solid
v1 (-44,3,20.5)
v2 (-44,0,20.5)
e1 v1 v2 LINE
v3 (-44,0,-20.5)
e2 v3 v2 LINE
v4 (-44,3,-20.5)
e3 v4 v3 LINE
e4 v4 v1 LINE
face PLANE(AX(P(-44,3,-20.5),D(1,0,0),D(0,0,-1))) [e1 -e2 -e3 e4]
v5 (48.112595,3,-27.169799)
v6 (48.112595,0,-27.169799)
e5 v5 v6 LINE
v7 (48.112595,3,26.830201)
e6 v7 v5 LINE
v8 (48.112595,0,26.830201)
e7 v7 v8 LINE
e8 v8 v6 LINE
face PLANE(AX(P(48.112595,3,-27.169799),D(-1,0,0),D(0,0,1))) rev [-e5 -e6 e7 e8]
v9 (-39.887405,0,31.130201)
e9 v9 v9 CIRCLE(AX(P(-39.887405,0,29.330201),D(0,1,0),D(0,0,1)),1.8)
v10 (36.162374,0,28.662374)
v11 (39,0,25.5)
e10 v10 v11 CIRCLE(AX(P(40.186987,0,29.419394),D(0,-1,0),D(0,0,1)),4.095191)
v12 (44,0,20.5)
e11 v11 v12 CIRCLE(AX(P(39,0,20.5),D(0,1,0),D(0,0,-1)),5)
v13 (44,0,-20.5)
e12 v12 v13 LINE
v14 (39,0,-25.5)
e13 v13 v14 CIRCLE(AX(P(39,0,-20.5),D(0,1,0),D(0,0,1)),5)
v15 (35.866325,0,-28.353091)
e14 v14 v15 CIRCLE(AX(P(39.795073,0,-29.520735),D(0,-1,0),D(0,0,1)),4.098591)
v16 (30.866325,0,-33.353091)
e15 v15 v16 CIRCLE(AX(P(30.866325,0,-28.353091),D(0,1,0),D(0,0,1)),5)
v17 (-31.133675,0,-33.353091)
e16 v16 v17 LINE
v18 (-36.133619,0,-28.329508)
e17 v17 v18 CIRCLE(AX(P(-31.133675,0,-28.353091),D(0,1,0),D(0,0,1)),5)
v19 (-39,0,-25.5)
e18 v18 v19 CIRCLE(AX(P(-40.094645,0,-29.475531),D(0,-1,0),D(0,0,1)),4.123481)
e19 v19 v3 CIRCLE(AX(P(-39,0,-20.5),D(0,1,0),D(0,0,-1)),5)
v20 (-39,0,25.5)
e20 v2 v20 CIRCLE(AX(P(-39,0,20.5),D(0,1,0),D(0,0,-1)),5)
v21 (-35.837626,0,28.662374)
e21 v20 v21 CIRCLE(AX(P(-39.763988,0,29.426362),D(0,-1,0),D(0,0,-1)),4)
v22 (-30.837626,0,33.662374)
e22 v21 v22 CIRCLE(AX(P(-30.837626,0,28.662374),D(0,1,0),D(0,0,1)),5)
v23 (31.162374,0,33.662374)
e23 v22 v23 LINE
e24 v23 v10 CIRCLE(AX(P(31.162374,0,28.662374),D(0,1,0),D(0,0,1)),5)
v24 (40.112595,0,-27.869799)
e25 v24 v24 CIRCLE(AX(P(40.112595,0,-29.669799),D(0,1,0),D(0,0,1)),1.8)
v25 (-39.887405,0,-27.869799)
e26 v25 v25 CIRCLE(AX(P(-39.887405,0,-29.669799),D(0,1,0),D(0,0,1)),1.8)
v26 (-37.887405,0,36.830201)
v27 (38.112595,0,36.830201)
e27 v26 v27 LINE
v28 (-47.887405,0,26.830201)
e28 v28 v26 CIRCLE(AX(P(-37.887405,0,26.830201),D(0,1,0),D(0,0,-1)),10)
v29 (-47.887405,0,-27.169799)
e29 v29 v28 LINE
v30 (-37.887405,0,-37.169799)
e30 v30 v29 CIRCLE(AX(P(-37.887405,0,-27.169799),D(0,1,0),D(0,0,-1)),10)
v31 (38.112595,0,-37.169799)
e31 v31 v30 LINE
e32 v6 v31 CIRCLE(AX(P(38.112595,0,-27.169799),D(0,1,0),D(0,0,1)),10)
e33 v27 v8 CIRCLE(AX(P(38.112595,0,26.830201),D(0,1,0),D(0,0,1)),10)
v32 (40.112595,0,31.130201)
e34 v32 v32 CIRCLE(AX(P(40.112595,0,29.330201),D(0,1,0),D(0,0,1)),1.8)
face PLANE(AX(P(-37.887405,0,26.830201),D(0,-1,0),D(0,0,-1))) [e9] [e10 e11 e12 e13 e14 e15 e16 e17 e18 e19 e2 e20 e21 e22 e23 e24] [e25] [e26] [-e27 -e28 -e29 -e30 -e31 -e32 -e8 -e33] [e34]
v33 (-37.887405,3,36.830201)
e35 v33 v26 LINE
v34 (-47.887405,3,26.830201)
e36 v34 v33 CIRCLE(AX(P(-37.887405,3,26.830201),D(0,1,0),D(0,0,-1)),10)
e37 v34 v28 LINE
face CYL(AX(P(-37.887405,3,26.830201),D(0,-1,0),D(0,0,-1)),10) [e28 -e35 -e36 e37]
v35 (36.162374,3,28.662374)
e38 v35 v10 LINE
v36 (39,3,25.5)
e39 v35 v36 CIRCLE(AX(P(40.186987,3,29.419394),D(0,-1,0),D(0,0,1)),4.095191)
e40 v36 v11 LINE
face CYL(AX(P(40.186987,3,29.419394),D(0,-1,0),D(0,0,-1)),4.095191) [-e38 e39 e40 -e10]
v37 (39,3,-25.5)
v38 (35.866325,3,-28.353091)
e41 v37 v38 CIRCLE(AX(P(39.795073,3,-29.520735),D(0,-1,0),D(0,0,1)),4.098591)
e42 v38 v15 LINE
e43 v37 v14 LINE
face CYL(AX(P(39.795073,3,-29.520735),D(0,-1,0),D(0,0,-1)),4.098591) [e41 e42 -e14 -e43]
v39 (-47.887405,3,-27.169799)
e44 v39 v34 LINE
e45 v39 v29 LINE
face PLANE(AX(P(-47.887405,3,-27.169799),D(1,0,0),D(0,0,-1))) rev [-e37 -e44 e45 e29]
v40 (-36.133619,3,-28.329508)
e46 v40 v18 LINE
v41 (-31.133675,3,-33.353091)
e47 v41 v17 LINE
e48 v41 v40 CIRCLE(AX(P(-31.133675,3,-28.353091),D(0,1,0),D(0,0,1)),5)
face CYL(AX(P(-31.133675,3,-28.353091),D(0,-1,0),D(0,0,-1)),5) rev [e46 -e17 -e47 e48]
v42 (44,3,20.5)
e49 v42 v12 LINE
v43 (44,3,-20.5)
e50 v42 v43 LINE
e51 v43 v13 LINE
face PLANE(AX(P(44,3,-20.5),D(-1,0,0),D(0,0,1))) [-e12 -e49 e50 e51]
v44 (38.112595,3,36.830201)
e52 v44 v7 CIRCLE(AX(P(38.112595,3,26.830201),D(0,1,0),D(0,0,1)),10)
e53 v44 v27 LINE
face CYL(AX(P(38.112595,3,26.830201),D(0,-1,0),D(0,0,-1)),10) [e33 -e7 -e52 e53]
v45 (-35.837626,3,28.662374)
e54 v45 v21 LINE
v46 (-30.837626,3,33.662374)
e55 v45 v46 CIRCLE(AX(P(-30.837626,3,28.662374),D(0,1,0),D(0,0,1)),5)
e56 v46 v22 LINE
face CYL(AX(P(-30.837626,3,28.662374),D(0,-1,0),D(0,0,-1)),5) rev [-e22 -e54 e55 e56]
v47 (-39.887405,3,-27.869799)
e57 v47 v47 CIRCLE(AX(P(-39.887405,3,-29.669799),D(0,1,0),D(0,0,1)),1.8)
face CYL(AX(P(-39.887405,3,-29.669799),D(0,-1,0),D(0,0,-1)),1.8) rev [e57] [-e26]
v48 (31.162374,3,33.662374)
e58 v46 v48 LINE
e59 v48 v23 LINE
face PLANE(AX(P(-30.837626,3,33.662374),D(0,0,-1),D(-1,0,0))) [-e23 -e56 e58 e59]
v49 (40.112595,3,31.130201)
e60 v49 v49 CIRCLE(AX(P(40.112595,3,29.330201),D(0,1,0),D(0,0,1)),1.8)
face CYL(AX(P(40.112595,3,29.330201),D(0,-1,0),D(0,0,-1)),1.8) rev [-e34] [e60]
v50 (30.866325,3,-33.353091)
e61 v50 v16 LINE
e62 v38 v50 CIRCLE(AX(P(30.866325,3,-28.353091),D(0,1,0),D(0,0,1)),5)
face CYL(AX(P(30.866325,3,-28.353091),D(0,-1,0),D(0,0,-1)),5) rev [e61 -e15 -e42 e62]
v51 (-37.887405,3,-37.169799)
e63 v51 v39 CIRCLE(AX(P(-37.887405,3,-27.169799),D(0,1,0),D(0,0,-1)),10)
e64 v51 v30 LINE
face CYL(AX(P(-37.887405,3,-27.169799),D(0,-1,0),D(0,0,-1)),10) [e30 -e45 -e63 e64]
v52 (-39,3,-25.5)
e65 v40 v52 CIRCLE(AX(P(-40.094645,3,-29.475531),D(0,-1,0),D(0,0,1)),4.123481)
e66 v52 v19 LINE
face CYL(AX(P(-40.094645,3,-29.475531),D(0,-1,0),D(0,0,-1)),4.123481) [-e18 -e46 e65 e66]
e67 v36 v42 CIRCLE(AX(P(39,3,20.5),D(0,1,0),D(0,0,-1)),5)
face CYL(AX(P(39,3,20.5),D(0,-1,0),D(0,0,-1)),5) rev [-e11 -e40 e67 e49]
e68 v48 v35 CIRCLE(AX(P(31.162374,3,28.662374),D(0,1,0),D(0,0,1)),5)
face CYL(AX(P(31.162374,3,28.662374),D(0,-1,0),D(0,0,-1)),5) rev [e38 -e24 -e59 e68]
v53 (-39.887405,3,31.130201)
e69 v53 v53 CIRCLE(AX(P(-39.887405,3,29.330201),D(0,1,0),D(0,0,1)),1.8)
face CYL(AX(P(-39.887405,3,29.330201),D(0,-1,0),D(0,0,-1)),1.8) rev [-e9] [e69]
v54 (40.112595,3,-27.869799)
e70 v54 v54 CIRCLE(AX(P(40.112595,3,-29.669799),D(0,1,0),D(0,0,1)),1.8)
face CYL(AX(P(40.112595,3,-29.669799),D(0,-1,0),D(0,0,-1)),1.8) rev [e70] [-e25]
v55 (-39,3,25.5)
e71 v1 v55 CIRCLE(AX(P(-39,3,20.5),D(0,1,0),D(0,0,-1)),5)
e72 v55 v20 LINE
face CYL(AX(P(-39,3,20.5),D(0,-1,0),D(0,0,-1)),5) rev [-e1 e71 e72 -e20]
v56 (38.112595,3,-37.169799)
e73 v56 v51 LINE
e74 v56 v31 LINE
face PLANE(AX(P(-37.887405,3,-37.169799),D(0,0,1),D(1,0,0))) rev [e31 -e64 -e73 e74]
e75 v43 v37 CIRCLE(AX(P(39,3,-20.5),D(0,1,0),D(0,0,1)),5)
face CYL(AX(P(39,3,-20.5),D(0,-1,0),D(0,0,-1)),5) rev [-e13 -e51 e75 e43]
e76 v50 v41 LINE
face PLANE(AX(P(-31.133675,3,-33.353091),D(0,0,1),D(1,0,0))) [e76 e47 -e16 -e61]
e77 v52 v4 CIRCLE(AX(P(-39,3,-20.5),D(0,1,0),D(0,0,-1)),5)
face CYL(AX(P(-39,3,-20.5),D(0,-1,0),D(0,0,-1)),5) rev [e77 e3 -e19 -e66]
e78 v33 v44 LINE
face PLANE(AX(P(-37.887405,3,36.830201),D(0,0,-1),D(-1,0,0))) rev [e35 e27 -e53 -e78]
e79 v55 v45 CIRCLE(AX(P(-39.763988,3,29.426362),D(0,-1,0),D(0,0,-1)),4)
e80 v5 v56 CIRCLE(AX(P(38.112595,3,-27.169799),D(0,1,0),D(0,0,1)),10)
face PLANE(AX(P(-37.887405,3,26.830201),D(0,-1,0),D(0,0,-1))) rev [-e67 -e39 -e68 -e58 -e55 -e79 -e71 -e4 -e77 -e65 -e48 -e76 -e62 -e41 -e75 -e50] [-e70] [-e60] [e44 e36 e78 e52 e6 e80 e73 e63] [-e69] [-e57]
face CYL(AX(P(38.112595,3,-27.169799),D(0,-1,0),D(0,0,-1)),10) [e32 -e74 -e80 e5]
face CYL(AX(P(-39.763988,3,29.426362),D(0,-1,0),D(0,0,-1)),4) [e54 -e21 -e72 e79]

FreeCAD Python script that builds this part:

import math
import FreeCAD as App
import Part
import Sketcher

V = App.Vector
Q = App.Units.Quantity

doc = App.newDocument("Part")
body = doc.addObject("PartDesign::Body", "Body")

sketch1 = body.newObject("Sketcher::SketchObject", "Sketch")
sketch1.AttachmentSupport = (doc.getObject("XZ_Plane"), [""])
sketch1.MapMode = "FlatFace"
sketch1.addGeometry(Part.LineSegment(V(38.1, -37.2, 0), V(-37.9, -37.2, 0)), False)
sketch1.addGeometry(Part.ArcOfCircle(Part.Circle(V(-37.9, -27.2, 0), V(0, 0, 1), 10), math.radians(180), math.radians(270)), False)
sketch1.addGeometry(Part.LineSegment(V(-47.9, -27.2, 0), V(-47.9, 26.8, 0)), False)
sketch1.addGeometry(Part.ArcOfCircle(Part.Circle(V(-37.9, 26.8, 0), V(0, 0, 1), 10), math.radians(90), math.radians(180)), False)
sketch1.addGeometry(Part.LineSegment(V(-37.9, 36.8, 0), V(38.1, 36.8, 0)), False)
sketch1.addGeometry(Part.ArcOfCircle(Part.Circle(V(38.1, 26.8, 0), V(0, 0, 1), 10), math.radians(0), math.radians(90)), False)
sketch1.addGeometry(Part.LineSegment(V(48.1, 26.8, 0), V(48.1, -27.2, 0)), False)
sketch1.addGeometry(Part.ArcOfCircle(Part.Circle(V(38.1, -27.2, 0), V(0, 0, 1), 10), math.radians(-90), math.radians(0)), False)
sketch1.addGeometry(Part.Circle(V(40.1, 29.3, 0), V(0, 0, 1), 1.8), False)
sketch1.addGeometry(Part.Circle(V(-39.9, 29.3, 0), V(0, 0, 1), 1.8), False)
sketch1.addGeometry(Part.Circle(V(40.1, -29.7, 0), V(0, 0, 1), 1.8), False)
sketch1.addGeometry(Part.ArcOfCircle(Part.Circle(V(-39, -20.5, 0), V(0, 0, 1), 5), math.radians(180), math.radians(270)), False)
sketch1.addGeometry(Part.ArcOfCircle(Part.Circle(V(-40.1, -29.5, 0), V(0, 0, 1), 4.1), math.radians(16), math.radians(75)), False)
sketch1.addGeometry(Part.ArcOfCircle(Part.Circle(V(-31.1, -28.4, 0), V(0, 0, 1), 5), math.radians(180), math.radians(270)), False)
sketch1.addGeometry(Part.LineSegment(V(-31.1, -33.4, 0), V(30.9, -33.4, 0)), False)
sketch1.addGeometry(Part.ArcOfCircle(Part.Circle(V(30.9, -28.4, 0), V(0, 0, 1), 5), math.radians(-90), math.radians(0)), False)
sketch1.addGeometry(Part.ArcOfCircle(Part.Circle(V(39.8, -29.5, 0), V(0, 0, 1), 4.1), math.radians(101), math.radians(163)), False)
sketch1.addGeometry(Part.ArcOfCircle(Part.Circle(V(39, -20.5, 0), V(0, 0, 1), 5), math.radians(-90), math.radians(0)), False)
sketch1.addGeometry(Part.LineSegment(V(44, -20.5, 0), V(44, 20.5, 0)), False)
sketch1.addGeometry(Part.ArcOfCircle(Part.Circle(V(39, 20.5, 0), V(0, 0, 1), 5), math.radians(0), math.radians(90)), False)
sketch1.addGeometry(Part.ArcOfCircle(Part.Circle(V(40.2, 29.4, 0), V(0, 0, 1), 4.1), math.radians(-169), math.radians(-107)), False)
sketch1.addGeometry(Part.ArcOfCircle(Part.Circle(V(31.2, 28.7, 0), V(0, 0, 1), 5), math.radians(0), math.radians(90)), False)
sketch1.addGeometry(Part.LineSegment(V(31.2, 33.7, 0), V(-30.8, 33.7, 0)), False)
sketch1.addGeometry(Part.ArcOfCircle(Part.Circle(V(-30.8, 28.7, 0), V(0, 0, 1), 5), math.radians(90), math.radians(180)), False)
sketch1.addGeometry(Part.ArcOfCircle(Part.Circle(V(-39.8, 29.4, 0), V(0, 0, 1), 4), math.radians(-79), math.radians(-11)), False)
sketch1.addGeometry(Part.ArcOfCircle(Part.Circle(V(-39, 20.5, 0), V(0, 0, 1), 5), math.radians(90), math.radians(180)), False)
sketch1.addGeometry(Part.LineSegment(V(-44, 20.5, 0), V(-44, -20.5, 0)), False)
sketch1.addGeometry(Part.Circle(V(-39.9, -29.7, 0), V(0, 0, 1), 1.8), False)
sketch1.addConstraint(Sketcher.Constraint("Tangent", 0, 2, 1, 2))
sketch1.addConstraint(Sketcher.Constraint("Tangent", 1, 1, 2, 1))
sketch1.addConstraint(Sketcher.Constraint("Tangent", 2, 2, 3, 2))
sketch1.addConstraint(Sketcher.Constraint("Tangent", 3, 1, 4, 1))
sketch1.addConstraint(Sketcher.Constraint("Tangent", 4, 2, 5, 2))
sketch1.addConstraint(Sketcher.Constraint("Tangent", 5, 1, 6, 1))
sketch1.addConstraint(Sketcher.Constraint("Tangent", 6, 2, 7, 2))
sketch1.addConstraint(Sketcher.Constraint("Tangent", 7, 1, 0, 1))
sketch1.addConstraint(Sketcher.Constraint("Coincident", 11, 2, 12, 2))
sketch1.addConstraint(Sketcher.Constraint("Coincident", 12, 1, 13, 1))
sketch1.addConstraint(Sketcher.Constraint("Tangent", 13, 2, 14, 1))
sketch1.addConstraint(Sketcher.Constraint("Tangent", 14, 2, 15, 1))
sketch1.addConstraint(Sketcher.Constraint("Coincident", 15, 2, 16, 2))
sketch1.addConstraint(Sketcher.Constraint("Coincident", 16, 1, 17, 1))
sketch1.addConstraint(Sketcher.Constraint("Tangent", 17, 2, 18, 1))
sketch1.addConstraint(Sketcher.Constraint("Tangent", 18, 2, 19, 1))
sketch1.addConstraint(Sketcher.Constraint("Coincident", 19, 2, 20, 2))
sketch1.addConstraint(Sketcher.Constraint("Coincident", 20, 1, 21, 1))
sketch1.addConstraint(Sketcher.Constraint("Tangent", 21, 2, 22, 1))
sketch1.addConstraint(Sketcher.Constraint("Tangent", 22, 2, 23, 1))
sketch1.addConstraint(Sketcher.Constraint("Coincident", 23, 2, 24, 2))
sketch1.addConstraint(Sketcher.Constraint("Coincident", 24, 1, 25, 1))
sketch1.addConstraint(Sketcher.Constraint("Tangent", 25, 2, 26, 1))
sketch1.addConstraint(Sketcher.Constraint("Tangent", 26, 2, 11, 1))
sketch1.addConstraint(Sketcher.Constraint("Horizontal", 0))
sketch1.addConstraint(Sketcher.Constraint("Vertical", 2))
sketch1.addConstraint(Sketcher.Constraint("Horizontal", 4))
sketch1.addConstraint(Sketcher.Constraint("Vertical", 6))
sketch1.addConstraint(Sketcher.Constraint("Horizontal", 14))
sketch1.addConstraint(Sketcher.Constraint("Vertical", 18))
sketch1.addConstraint(Sketcher.Constraint("Horizontal", 22))
sketch1.addConstraint(Sketcher.Constraint("Vertical", 26))
sketch1.addConstraint(Sketcher.Constraint("Equal", 1, 3))
sketch1.addConstraint(Sketcher.Constraint("Equal", 3, 5))
sketch1.addConstraint(Sketcher.Constraint("Equal", 5, 7))
sketch1.addConstraint(Sketcher.Constraint("Equal", 8, 9))
sketch1.addConstraint(Sketcher.Constraint("Equal", 9, 10))
sketch1.addConstraint(Sketcher.Constraint("Equal", 11, 13))
sketch1.addConstraint(Sketcher.Constraint("Equal", 13, 15))
sketch1.addConstraint(Sketcher.Constraint("Equal", 15, 17))
sketch1.addConstraint(Sketcher.Constraint("Equal", 17, 19))
sketch1.addConstraint(Sketcher.Constraint("Equal", 19, 21))
sketch1.addConstraint(Sketcher.Constraint("Equal", 21, 23))
sketch1.addConstraint(Sketcher.Constraint("Equal", 23, 25))
sketch1.addConstraint(Sketcher.Constraint("Equal", 10, 27))
sketch1.addConstraint(Sketcher.Constraint("Symmetric", 11, 3, 19, 3, -1, 1))
sketch1.addConstraint(Sketcher.Constraint("Symmetric", 16, 1, 24, 1, -1, 1))
sketch1.addConstraint(Sketcher.Constraint("Symmetric", 11, 2, 16, 1, -2))
sketch1.addConstraint(Sketcher.Constraint("Horizontal", 8, 3, 9, 3))
sketch1.addConstraint(Sketcher.Constraint("Horizontal", 10, 3, 27, 3))
sketch1.addConstraint(Sketcher.Constraint("Horizontal", 13, 3, 15, 2))
sketch1.addConstraint(Sketcher.Constraint("Horizontal", 23, 3, 20, 1))
sketch1.addConstraint(Sketcher.Constraint("Horizontal", 20, 1, 23, 2))
sketch1.addConstraint(Sketcher.Constraint("Vertical", 8, 3, 10, 3))
sketch1.addConstraint(Sketcher.Constraint("Vertical", 9, 3, 27, 3))
sketch1.addConstraint(Sketcher.Constraint("Vertical", 25, 3, 11, 2))
sketch1.addConstraint(Sketcher.Constraint("Vertical", 16, 1, 19, 2))
sketch1.addConstraint(Sketcher.Constraint("Equal", 14, 22))
sketch1.addConstraint(Sketcher.Constraint("Radius", 1, Q("10 mm")))
sketch1.addConstraint(Sketcher.Constraint("Radius", 11, Q("5 mm")))
sketch1.addConstraint(Sketcher.Constraint("Radius", 24, Q("4 mm")))
sketch1.addConstraint(Sketcher.Constraint("Diameter", 8, Q("3.6 mm")))
sketch1.addConstraint(Sketcher.Constraint("DistanceX", 0, 2, 0, 1, Q("76 mm")))
sketch1.addConstraint(Sketcher.Constraint("DistanceX", 14, 1, 14, 2, Q("62 mm")))
sketch1.addConstraint(Sketcher.Constraint("DistanceY", 2, 1, 2, 2, Q("54 mm")))
sketch1.addConstraint(Sketcher.Constraint("DistanceY", 18, 1, 18, 2, Q("41 mm")))
sketch1.addConstraint(Sketcher.Constraint("DistanceX", 11, 3, -1, 1, Q("39 mm")))
sketch1.addConstraint(Sketcher.Constraint("DistanceX", 5, 3, 8, 3, Q("2 mm")))
sketch1.addConstraint(Sketcher.Constraint("DistanceX", 9, 3, 3, 3, Q("2 mm")))
sketch1.addConstraint(Sketcher.Constraint("DistanceY", 10, 3, 8, 3, Q("59 mm")))
sketch1.addConstraint(Sketcher.Constraint("DistanceY", 5, 3, 8, 3, Q("2.5 mm")))
sketch1.addConstraint(Sketcher.Constraint("Radius", 12, Q("4.123481 mm")))
sketch1.addConstraint(Sketcher.Constraint("Radius", 16, Q("4.098591 mm")))
sketch1.addConstraint(Sketcher.Constraint("Radius", 20, Q("4.095191 mm")))
sketch1.addConstraint(Sketcher.Constraint("DistanceY", 1, 3, -1, 1, Q("27.169799 mm")))
sketch1.addConstraint(Sketcher.Constraint("DistanceY", 12, 3, -1, 1, Q("29.475531 mm")))
sketch1.addConstraint(Sketcher.Constraint("DistanceY", 13, 3, -1, 1, Q("28.353091 mm")))
sketch1.addConstraint(Sketcher.Constraint("DistanceX", 24, 3, -1, 1, Q("39.763988 mm")))
sketch1.addConstraint(Sketcher.Constraint("DistanceX", 12, 1, -1, 1, Q("36.133619 mm")))
sketch1.addConstraint(Sketcher.Constraint("DistanceX", 12, 3, 1, 3, Q("2.207239 mm")))
sketch1.addConstraint(Sketcher.Constraint("DistanceX", 21, 3, 5, 3, Q("6.95022 mm")))
pad1 = body.newObject("PartDesign::Pad", "Pad")
pad1.Profile = sketch1
pad1.Length = 3
pad1.Reversed = True

doc.recompute()
